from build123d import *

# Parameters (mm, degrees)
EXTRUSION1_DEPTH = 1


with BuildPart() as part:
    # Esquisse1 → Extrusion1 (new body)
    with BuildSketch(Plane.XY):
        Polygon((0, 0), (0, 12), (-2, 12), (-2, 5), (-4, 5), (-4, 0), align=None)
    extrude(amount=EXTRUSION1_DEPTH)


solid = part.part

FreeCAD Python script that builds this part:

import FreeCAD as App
import Part
import Sketcher

doc = App.newDocument("Part")
body = doc.addObject("PartDesign::Body", "Body")

sketch1 = doc.addObject("Sketcher::SketchObject", "Sketch")
body.addObject(sketch1)
sketch1.AttachmentSupport = (doc.XY_Plane, [""])
sketch1.MapMode = "FlatFace"
sketch1.addGeometry([
    Part.LineSegment(App.Vector(0, 0, 0), App.Vector(0, 12, 0)),
    Part.LineSegment(App.Vector(0, 12, 0), App.Vector(-2, 12, 0)),
    Part.LineSegment(App.Vector(-2, 12, 0), App.Vector(-2, 5, 0)),
    Part.LineSegment(App.Vector(-2, 5, 0), App.Vector(-4, 5, 0)),
    Part.LineSegment(App.Vector(-4, 5, 0), App.Vector(-4, 0, 0)),
    Part.LineSegment(App.Vector(-4, 0, 0), App.Vector(0, 0, 0)),
], False)
sketch1.addConstraint([
    Sketcher.Constraint("Coincident", 0, 2, 1, 1),
    Sketcher.Constraint("Coincident", 1, 2, 2, 1),
    Sketcher.Constraint("Coincident", 2, 2, 3, 1),
    Sketcher.Constraint("Coincident", 3, 2, 4, 1),
    Sketcher.Constraint("Coincident", 4, 2, 5, 1),
    Sketcher.Constraint("Coincident", 5, 2, 0, 1),
    Sketcher.Constraint("Vertical", 0),
    Sketcher.Constraint("Horizontal", 1),
    Sketcher.Constraint("Vertical", 2),
    Sketcher.Constraint("Horizontal", 3),
    Sketcher.Constraint("Vertical", 4),
    Sketcher.Constraint("Horizontal", 5),
    Sketcher.Constraint("Coincident", 5, 2, -1, 1),
    Sketcher.Constraint("Equal", 1, 3),
    Sketcher.Constraint("DistanceX", 1, 2, 1, 1, 2.0),
    Sketcher.Constraint("DistanceY", 0, 1, 0, 2, 12.0),
    Sketcher.Constraint("DistanceY", 2, 2, 2, 1, 7.0),
])
pad1 = doc.addObject("PartDesign::Pad", "Pad")
body.addObject(pad1)
pad1.Profile = sketch1
pad1.Length = 1

doc.recompute()
